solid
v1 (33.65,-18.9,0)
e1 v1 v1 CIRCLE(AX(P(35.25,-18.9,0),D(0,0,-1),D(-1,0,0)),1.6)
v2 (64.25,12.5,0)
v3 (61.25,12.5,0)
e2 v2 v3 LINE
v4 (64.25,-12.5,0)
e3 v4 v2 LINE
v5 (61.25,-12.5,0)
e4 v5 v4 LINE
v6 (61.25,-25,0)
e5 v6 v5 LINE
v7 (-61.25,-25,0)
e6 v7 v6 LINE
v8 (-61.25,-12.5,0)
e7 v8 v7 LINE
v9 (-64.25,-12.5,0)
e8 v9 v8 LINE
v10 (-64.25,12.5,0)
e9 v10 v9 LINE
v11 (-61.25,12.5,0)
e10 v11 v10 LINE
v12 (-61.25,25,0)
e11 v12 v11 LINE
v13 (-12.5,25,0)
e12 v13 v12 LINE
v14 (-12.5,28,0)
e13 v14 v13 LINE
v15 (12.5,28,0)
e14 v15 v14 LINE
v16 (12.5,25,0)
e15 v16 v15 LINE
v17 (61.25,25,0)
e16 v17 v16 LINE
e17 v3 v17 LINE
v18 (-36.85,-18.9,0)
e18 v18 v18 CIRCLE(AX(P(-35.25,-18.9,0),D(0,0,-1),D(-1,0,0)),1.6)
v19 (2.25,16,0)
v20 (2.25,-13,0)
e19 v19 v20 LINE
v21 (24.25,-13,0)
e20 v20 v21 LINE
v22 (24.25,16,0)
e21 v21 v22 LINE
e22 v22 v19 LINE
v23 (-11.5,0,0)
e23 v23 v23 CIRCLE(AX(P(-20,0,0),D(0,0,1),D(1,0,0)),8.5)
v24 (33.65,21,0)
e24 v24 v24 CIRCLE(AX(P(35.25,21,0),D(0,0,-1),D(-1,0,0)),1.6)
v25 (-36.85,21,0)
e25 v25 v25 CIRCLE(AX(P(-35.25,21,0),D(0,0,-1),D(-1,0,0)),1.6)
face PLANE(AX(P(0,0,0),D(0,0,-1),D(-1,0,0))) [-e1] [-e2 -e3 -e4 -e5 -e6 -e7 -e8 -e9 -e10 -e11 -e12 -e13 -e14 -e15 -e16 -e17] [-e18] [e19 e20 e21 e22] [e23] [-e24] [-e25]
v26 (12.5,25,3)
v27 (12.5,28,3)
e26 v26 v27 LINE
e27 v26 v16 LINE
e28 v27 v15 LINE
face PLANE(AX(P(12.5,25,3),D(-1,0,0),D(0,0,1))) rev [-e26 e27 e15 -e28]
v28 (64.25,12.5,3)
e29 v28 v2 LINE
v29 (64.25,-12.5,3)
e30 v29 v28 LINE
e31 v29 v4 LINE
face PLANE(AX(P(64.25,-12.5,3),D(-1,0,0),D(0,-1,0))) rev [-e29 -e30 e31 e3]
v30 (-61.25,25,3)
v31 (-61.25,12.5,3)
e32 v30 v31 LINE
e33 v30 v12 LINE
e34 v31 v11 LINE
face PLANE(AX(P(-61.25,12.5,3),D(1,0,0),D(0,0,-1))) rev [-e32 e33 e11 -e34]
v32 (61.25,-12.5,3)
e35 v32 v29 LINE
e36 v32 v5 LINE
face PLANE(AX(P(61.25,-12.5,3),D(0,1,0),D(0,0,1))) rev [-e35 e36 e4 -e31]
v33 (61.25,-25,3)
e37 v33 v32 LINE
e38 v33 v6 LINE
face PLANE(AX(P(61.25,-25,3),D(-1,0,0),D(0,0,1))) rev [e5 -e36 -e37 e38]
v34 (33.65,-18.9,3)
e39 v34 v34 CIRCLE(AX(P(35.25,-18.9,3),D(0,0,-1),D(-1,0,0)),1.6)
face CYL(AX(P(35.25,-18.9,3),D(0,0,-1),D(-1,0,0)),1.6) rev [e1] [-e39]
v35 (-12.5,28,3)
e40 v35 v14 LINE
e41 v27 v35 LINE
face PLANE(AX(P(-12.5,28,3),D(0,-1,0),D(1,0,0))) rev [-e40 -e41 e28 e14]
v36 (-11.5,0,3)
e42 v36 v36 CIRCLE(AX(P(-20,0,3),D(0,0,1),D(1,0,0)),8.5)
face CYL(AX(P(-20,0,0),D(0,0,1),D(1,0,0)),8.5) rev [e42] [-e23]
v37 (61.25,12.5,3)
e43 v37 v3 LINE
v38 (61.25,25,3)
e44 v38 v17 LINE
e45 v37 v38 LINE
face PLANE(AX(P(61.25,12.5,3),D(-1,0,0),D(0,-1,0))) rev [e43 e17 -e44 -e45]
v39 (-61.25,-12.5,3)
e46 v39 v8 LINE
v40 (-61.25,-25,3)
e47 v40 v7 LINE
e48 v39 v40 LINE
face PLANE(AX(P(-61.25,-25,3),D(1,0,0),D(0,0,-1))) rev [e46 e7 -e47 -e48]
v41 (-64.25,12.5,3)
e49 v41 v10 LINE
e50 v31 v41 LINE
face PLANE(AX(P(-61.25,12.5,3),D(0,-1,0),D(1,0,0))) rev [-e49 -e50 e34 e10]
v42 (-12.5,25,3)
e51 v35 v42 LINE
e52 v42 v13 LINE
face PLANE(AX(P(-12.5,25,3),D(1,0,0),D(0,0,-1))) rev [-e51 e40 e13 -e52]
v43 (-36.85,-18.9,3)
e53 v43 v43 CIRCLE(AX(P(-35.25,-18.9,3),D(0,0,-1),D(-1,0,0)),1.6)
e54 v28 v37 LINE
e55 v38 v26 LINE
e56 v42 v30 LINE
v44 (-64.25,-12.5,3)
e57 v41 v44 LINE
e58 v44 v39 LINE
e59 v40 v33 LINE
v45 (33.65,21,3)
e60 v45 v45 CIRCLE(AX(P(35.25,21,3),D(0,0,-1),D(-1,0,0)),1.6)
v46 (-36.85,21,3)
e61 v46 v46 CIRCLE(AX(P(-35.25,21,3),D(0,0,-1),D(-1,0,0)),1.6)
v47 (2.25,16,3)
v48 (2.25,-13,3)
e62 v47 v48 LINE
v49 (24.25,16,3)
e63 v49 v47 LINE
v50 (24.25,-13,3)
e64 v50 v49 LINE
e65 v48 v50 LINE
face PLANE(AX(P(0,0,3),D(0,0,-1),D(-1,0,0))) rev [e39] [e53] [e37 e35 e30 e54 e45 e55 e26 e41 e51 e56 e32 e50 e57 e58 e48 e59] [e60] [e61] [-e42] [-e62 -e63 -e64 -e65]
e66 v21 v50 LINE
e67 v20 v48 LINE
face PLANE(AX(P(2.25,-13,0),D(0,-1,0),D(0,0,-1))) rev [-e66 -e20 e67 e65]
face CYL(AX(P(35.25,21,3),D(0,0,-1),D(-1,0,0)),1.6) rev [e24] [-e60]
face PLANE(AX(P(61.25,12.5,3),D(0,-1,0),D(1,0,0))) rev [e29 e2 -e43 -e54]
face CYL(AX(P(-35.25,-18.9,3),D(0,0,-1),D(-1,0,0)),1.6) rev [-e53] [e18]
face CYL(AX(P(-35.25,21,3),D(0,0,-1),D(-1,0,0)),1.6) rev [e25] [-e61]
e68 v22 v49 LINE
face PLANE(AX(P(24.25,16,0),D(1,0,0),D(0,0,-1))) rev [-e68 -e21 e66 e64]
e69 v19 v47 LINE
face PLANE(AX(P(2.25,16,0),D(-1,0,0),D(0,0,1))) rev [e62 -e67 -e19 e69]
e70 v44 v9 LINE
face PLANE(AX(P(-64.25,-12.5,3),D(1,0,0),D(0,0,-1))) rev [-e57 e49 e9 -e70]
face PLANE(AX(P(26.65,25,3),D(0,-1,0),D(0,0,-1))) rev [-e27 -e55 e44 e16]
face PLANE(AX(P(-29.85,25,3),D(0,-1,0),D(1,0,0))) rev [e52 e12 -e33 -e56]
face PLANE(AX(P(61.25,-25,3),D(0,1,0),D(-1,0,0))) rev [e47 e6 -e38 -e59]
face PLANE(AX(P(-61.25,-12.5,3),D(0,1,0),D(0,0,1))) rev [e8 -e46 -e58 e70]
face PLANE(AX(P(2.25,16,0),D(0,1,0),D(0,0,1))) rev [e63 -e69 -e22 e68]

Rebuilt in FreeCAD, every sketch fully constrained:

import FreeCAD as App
import Part
import Sketcher

doc = App.newDocument("Part")
body = doc.addObject("PartDesign::Body", "Body")

# Sketch on XY plane
sketch1 = body.newObject("Sketcher::SketchObject", "Sketch")
sketch1.AttachmentSupport = (doc.getObject("XY_Plane"), [""])
sketch1.MapMode = "FlatFace"
sketch1.addGeometry([
    Part.LineSegment(App.Vector(-61.2, -25, 0), App.Vector(61.2, -25, 0)),  # 0
    Part.LineSegment(App.Vector(61.2, -25, 0), App.Vector(61.2, -12.5, 0)),  # 1
    Part.LineSegment(App.Vector(61.2, -12.5, 0), App.Vector(64.2, -12.5, 0)),  # 2
    Part.LineSegment(App.Vector(64.2, -12.5, 0), App.Vector(64.2, 12.5, 0)),  # 3
    Part.LineSegment(App.Vector(64.2, 12.5, 0), App.Vector(61.2, 12.5, 0)),  # 4
    Part.LineSegment(App.Vector(61.2, 12.5, 0), App.Vector(61.2, 25, 0)),  # 5
    Part.LineSegment(App.Vector(61.2, 25, 0), App.Vector(12.5, 25, 0)),  # 6
    Part.LineSegment(App.Vector(12.5, 25, 0), App.Vector(12.5, 28, 0)),  # 7
    Part.LineSegment(App.Vector(12.5, 28, 0), App.Vector(-12.5, 28, 0)),  # 8
    Part.LineSegment(App.Vector(-12.5, 28, 0), App.Vector(-12.5, 25, 0)),  # 9
    Part.LineSegment(App.Vector(-12.5, 25, 0), App.Vector(-61.2, 25, 0)),  # 10
    Part.LineSegment(App.Vector(-61.2, 25, 0), App.Vector(-61.2, 12.5, 0)),  # 11
    Part.LineSegment(App.Vector(-61.2, 12.5, 0), App.Vector(-64.2, 12.5, 0)),  # 12
    Part.LineSegment(App.Vector(-64.2, 12.5, 0), App.Vector(-64.2, -12.5, 0)),  # 13
    Part.LineSegment(App.Vector(-64.2, -12.5, 0), App.Vector(-61.2, -12.5, 0)),  # 14
    Part.LineSegment(App.Vector(-61.2, -12.5, 0), App.Vector(-61.2, -25, 0)),  # 15
], False)
sketch1.addConstraint([
    Sketcher.Constraint("Coincident", 0, 2, 1, 1),
    Sketcher.Constraint("Coincident", 1, 2, 2, 1),
    Sketcher.Constraint("Coincident", 2, 2, 3, 1),
    Sketcher.Constraint("Coincident", 3, 2, 4, 1),
    Sketcher.Constraint("Coincident", 4, 2, 5, 1),
    Sketcher.Constraint("Coincident", 5, 2, 6, 1),
    Sketcher.Constraint("Coincident", 6, 2, 7, 1),
    Sketcher.Constraint("Coincident", 7, 2, 8, 1),
    Sketcher.Constraint("Coincident", 8, 2, 9, 1),
    Sketcher.Constraint("Coincident", 9, 2, 10, 1),
    Sketcher.Constraint("Coincident", 10, 2, 11, 1),
    Sketcher.Constraint("Coincident", 11, 2, 12, 1),
    Sketcher.Constraint("Coincident", 12, 2, 13, 1),
    Sketcher.Constraint("Coincident", 13, 2, 14, 1),
    Sketcher.Constraint("Coincident", 14, 2, 15, 1),
    Sketcher.Constraint("Coincident", 15, 2, 0, 1),
    Sketcher.Constraint("Horizontal", 0),
    Sketcher.Constraint("Vertical", 1),
    Sketcher.Constraint("Horizontal", 2),
    Sketcher.Constraint("Vertical", 3),
    Sketcher.Constraint("Horizontal", 4),
    Sketcher.Constraint("Vertical", 5),
    Sketcher.Constraint("Horizontal", 6),
    Sketcher.Constraint("Vertical", 7),
    Sketcher.Constraint("Horizontal", 8),
    Sketcher.Constraint("Vertical", 9),
    Sketcher.Constraint("Horizontal", 10),
    Sketcher.Constraint("Vertical", 11),
    Sketcher.Constraint("Horizontal", 12),
    Sketcher.Constraint("Vertical", 13),
    Sketcher.Constraint("Horizontal", 14),
    Sketcher.Constraint("Vertical", 15),
    Sketcher.Constraint("Symmetric", 0, 2, 10, 2, -1, 1),
    Sketcher.Constraint("Symmetric", 2, 2, 12, 2, -1, 1),
    Sketcher.Constraint("Symmetric", 4, 2, 14, 2, -1, 1),
    Sketcher.Constraint("Symmetric", 6, 2, 9, 2, -2),
    Sketcher.Constraint("Symmetric", 4, 2, 11, 2, -2),
    Sketcher.Constraint("Equal", 8, 3),
    Sketcher.Constraint("Equal", 14, 7),
    Sketcher.Constraint("DistanceX", 2, 1, 2, 2, 3.0),
    Sketcher.Constraint("DistanceX", 8, 2, 8, 1, 25.0),
    Sketcher.Constraint("DistanceX", 0, 1, 0, 2, 122.5),
    Sketcher.Constraint("DistanceY", 1, 1, 1, 2, 12.5),
])
pad1 = body.newObject("PartDesign::Pad", "Pad")
pad1.Profile = sketch1
pad1.Length = 3

# Sketch on XY plane
sketch2 = body.newObject("Sketcher::SketchObject", "Sketch001")
sketch2.AttachmentSupport = (doc.getObject("XY_Plane"), [""])
sketch2.MapMode = "FlatFace"
sketch2.addGeometry(Part.Circle(App.Vector(-35.2, 21, 0), App.Vector(0, 0, 1), 1.6), False)
sketch2.addConstraint([
    Sketcher.Constraint("Diameter", 0, 3.2),
    Sketcher.Constraint("DistanceY", -1, 1, 0, 3, 21.0),
    Sketcher.Constraint("DistanceX", 0, 3, -1, 1, 35.25),
])
pocket1 = body.newObject("PartDesign::Pocket", "Pocket")
pocket1.Profile = sketch2
pocket1.Type = "ThroughAll"
pocket1.Reversed = True

# Sketch on XY plane
sketch3 = body.newObject("Sketcher::SketchObject", "Sketch002")
sketch3.AttachmentSupport = (doc.getObject("XY_Plane"), [""])
sketch3.MapMode = "FlatFace"
sketch3.addGeometry(Part.Circle(App.Vector(35.2, 21, 0), App.Vector(0, 0, 1), 1.6), False)
sketch3.addConstraint([
    Sketcher.Constraint("Diameter", 0, 3.2),
    Sketcher.Constraint("DistanceY", -1, 1, 0, 3, 21.0),
    Sketcher.Constraint("DistanceX", -1, 1, 0, 3, 35.25),
])
pocket2 = body.newObject("PartDesign::Pocket", "Pocket001")
pocket2.Profile = sketch3
pocket2.Type = "ThroughAll"
pocket2.Reversed = True

# Sketch on XY plane
sketch4 = body.newObject("Sketcher::SketchObject", "Sketch003")
sketch4.AttachmentSupport = (doc.getObject("XY_Plane"), [""])
sketch4.MapMode = "FlatFace"
sketch4.addGeometry([
    Part.Circle(App.Vector(-35.2, -18.9, 0), App.Vector(0, 0, 1), 1.6),
    Part.Circle(App.Vector(35.2, -18.9, 0), App.Vector(0, 0, 1), 1.6),
], False)
sketch4.addConstraint([
    Sketcher.Constraint("Equal", 0, 1),
    Sketcher.Constraint("Symmetric", 0, 3, 1, 3, -2),
    Sketcher.Constraint("Diameter", 0, 3.2),
    Sketcher.Constraint("DistanceY", 0, 3, -1, 1, 18.9),
    Sketcher.Constraint("DistanceX", 0, 3, 1, 3, 70.5),
])
pocket3 = body.newObject("PartDesign::Pocket", "Pocket002")
pocket3.Profile = sketch4
pocket3.Type = "ThroughAll"
pocket3.Reversed = True

# Sketch on XY plane
sketch5 = body.newObject("Sketcher::SketchObject", "Sketch004")
sketch5.AttachmentSupport = (doc.getObject("XY_Plane"), [""])
sketch5.MapMode = "FlatFace"
sketch5.AttachmentOffset = App.Placement(App.Vector(0, 0, 3), App.Rotation())
sketch5.addGeometry([
    Part.LineSegment(App.Vector(2, 16, 0), App.Vector(2, -13, 0)),
    Part.LineSegment(App.Vector(2, -13, 0), App.Vector(24, -13, 0)),
    Part.LineSegment(App.Vector(24, -13, 0), App.Vector(24, 16, 0)),
    Part.LineSegment(App.Vector(24, 16, 0), App.Vector(2, 16, 0)),
], False)
sketch5.addConstraint([
    Sketcher.Constraint("Coincident", 0, 2, 1, 1),
    Sketcher.Constraint("Coincident", 1, 2, 2, 1),
    Sketcher.Constraint("Coincident", 2, 2, 3, 1),
    Sketcher.Constraint("Coincident", 3, 2, 0, 1),
    Sketcher.Constraint("Vertical", 0),
    Sketcher.Constraint("Horizontal", 1),
    Sketcher.Constraint("Vertical", 2),
    Sketcher.Constraint("Horizontal", 3),
    Sketcher.Constraint("DistanceX", 1, 1, 1, 2, 22.0),
    Sketcher.Constraint("DistanceY", 0, 2, 0, 1, 29.0),
    Sketcher.Constraint("DistanceY", 0, 2, -1, 1, 13.0),
    Sketcher.Constraint("DistanceX", -1, 1, 0, 2, 2.25),
])
pocket4 = body.newObject("PartDesign::Pocket", "Pocket003")
pocket4.Profile = sketch5
pocket4.Type = "ThroughAll"

# Sketch on XY plane
sketch6 = body.newObject("Sketcher::SketchObject", "Sketch005")
sketch6.AttachmentSupport = (doc.getObject("XY_Plane"), [""])
sketch6.MapMode = "FlatFace"
sketch6.AttachmentOffset = App.Placement(App.Vector(0, 0, 3), App.Rotation())
sketch6.addGeometry(Part.Circle(App.Vector(-20, 0, 0), App.Vector(0, 0, 1), 8), False)
sketch6.addConstraint([
    Sketcher.Constraint("PointOnObject", 0, 3, -1),
    Sketcher.Constraint("Diameter", 0, 17.0),
    Sketcher.Constraint("DistanceX", 0, 3, -1, 1, 20.0),
])
pocket5 = body.newObject("PartDesign::Pocket", "Pocket004")
pocket5.Profile = sketch6
pocket5.Type = "ThroughAll"

doc.recompute()
